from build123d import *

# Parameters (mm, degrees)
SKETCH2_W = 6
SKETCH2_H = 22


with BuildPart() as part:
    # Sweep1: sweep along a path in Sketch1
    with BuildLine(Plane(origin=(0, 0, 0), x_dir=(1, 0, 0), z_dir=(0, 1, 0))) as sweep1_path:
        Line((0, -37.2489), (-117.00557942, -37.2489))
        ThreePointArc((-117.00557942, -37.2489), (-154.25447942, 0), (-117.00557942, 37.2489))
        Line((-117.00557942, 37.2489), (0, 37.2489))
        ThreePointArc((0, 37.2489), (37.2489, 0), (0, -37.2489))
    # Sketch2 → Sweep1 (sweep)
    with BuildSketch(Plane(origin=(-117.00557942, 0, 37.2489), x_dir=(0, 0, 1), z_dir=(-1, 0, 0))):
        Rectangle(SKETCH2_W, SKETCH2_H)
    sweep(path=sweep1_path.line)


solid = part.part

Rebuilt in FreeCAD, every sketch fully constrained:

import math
import FreeCAD as App
import Part
import Sketcher

V = App.Vector
Q = App.Units.Quantity

doc = App.newDocument("Part")
params = doc.addObject("Spreadsheet::Sheet", "Params")
for row, (alias, value) in enumerate([
    ("sketch1_width", "22 mm"),
    ("sketch1_height", "6 mm"),
], start=1):
    params.set(f"A{row}", alias)
    params.set(f"B{row}", "=" + value)
    params.setAlias(f"B{row}", alias)

body = doc.addObject("PartDesign::Body", "Body")

# Sketch on YZ plane
sketch1 = doc.addObject("Sketcher::SketchObject", "Sketch")
body.addObject(sketch1)
sketch1.AttachmentSupport = (doc.YZ_Plane, [""])
sketch1.MapMode = "FlatFace"
sketch1.AttachmentOffset = App.Placement(V(0, 0, -117.005579), App.Rotation())
sketch1.addGeometry([
    Part.LineSegment(V(11, 34, 0), V(-11, 34, 0)),
    Part.LineSegment(V(-11, 34, 0), V(-11, 40, 0)),
    Part.LineSegment(V(-11, 40, 0), V(11, 40, 0)),
    Part.LineSegment(V(11, 40, 0), V(11, 34, 0)),
], False)
sketch1.addConstraint([
    Sketcher.Constraint("Coincident", 0, 2, 1, 1),
    Sketcher.Constraint("Coincident", 1, 2, 2, 1),
    Sketcher.Constraint("Coincident", 2, 2, 3, 1),
    Sketcher.Constraint("Coincident", 3, 2, 0, 1),
    Sketcher.Constraint("Horizontal", 0),
    Sketcher.Constraint("Vertical", 1),
    Sketcher.Constraint("Horizontal", 2),
    Sketcher.Constraint("Vertical", 3),
    Sketcher.Constraint("DistanceX", 0, 2, 0, 1, Q("22 mm")),
    Sketcher.Constraint("DistanceY", 1, 1, 1, 2, Q("6 mm")),
    Sketcher.Constraint("DistanceX", 0, 2, -1, 1, Q("11 mm")),
    Sketcher.Constraint("DistanceY", -1, 1, 0, 2, Q("34.2489 mm")),
])
sketch1.setExpression("Constraints[8]", "Params.sketch1_width")
sketch1.setExpression("Constraints[9]", "Params.sketch1_height")

# Sketch on XZ plane
sketch2 = doc.addObject("Sketcher::SketchObject", "Sketch001")
body.addObject(sketch2)
sketch2.AttachmentSupport = (doc.XZ_Plane, [""])
sketch2.MapMode = "FlatFace"
sketch2.addGeometry([
    Part.LineSegment(V(0, 37, 0), V(-117, 37, 0)),
    Part.ArcOfCircle(Part.Circle(V(-117, 0, 0), V(0, 0, 1), 37), math.radians(90), math.radians(270)),
    Part.LineSegment(V(-117, -37, 0), V(0, -37, 0)),
    Part.ArcOfCircle(Part.Circle(V(0, 0, 0), V(0, 0, 1), 37), math.radians(-90), math.radians(90)),
], False)
sketch2.addConstraint([
    Sketcher.Constraint("Tangent", 0, 2, 1, 1),
    Sketcher.Constraint("Tangent", 1, 2, 2, 1),
    Sketcher.Constraint("Tangent", 2, 2, 3, 1),
    Sketcher.Constraint("Tangent", 3, 2, 0, 1),
    Sketcher.Constraint("Horizontal", 0),
    Sketcher.Constraint("Horizontal", 2),
    Sketcher.Constraint("Coincident", 3, 3, -1, 1),
    Sketcher.Constraint("Radius", 1, Q("37.2489 mm")),
    Sketcher.Constraint("DistanceX", 0, 2, 0, 1, Q("117.005579 mm")),
])
doc.recompute()

additivepipe = doc.addObject("PartDesign::AdditivePipe", "AdditivePipe")
body.addObject(additivepipe)
additivepipe.Profile = sketch1
additivepipe.Spine = (sketch2, ["Edge1", "Edge2", "Edge3", "Edge4"])

doc.recompute()
